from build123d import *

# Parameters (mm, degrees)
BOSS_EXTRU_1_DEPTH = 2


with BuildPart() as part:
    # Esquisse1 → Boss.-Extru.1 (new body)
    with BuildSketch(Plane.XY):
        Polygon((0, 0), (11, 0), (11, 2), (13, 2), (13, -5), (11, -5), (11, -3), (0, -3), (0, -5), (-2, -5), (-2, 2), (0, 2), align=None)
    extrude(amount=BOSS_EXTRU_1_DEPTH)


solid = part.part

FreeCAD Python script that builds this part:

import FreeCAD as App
import Part
import Sketcher

V = App.Vector


def add_polygon(sketch, points):
    """Adds a closed chain of lines whose ends are joined by coincident constraints."""
    first, n = sketch.GeometryCount, len(points)
    for a, b in zip(points, points[1:] + points[:1]):
        sketch.addGeometry(Part.LineSegment(App.Vector(*a, 0), App.Vector(*b, 0)), False)
    for i in range(n):
        sketch.addConstraint(Sketcher.Constraint("Coincident", first + i, 2, first + (i + 1) % n, 1))

doc = App.newDocument("Part")
body = doc.addObject("PartDesign::Body", "Body")

# Sketch on XY plane
sketch1 = body.newObject("Sketcher::SketchObject", "Sketch")
sketch1.AttachmentSupport = (doc.getObject("XY_Plane"), [""])
sketch1.MapMode = "FlatFace"
add_polygon(sketch1, [(11, 0), (0, 0), (0, 2), (-2, 2), (-2, -5), (0, -5), (0, -3), (11, -3), (11, -5), (13, -5), (13, 2), (11, 2)])  # lines 0-11
sketch1.addConstraint([
    Sketcher.Constraint("Horizontal", 0),
    Sketcher.Constraint("Vertical", 1),
    Sketcher.Constraint("Horizontal", 2),
    Sketcher.Constraint("Vertical", 3),
    Sketcher.Constraint("Horizontal", 4),
    Sketcher.Constraint("Vertical", 5),
    Sketcher.Constraint("Horizontal", 6),
    Sketcher.Constraint("Vertical", 7),
    Sketcher.Constraint("Horizontal", 8),
    Sketcher.Constraint("Vertical", 9),
    Sketcher.Constraint("Horizontal", 10),
    Sketcher.Constraint("Vertical", 11),
    Sketcher.Constraint("Coincident", 0, 2, -1, 1),
    Sketcher.Constraint("PointOnObject", 4, 2, -2),
    Sketcher.Constraint("Horizontal", 4, 2, 7, 2),
    Sketcher.Constraint("Horizontal", 2, 2, 9, 2),
    Sketcher.Constraint("Vertical", 7, 2, 10, 2),
    Sketcher.Constraint("Equal", 4, 8),
    Sketcher.Constraint("Equal", 10, 1),
    Sketcher.Constraint("Equal", 1, 5),
    Sketcher.Constraint("DistanceX", 0, 2, 0, 1, 11.0),
    Sketcher.Constraint("DistanceX", 2, 2, 2, 1, 2.0),
    Sketcher.Constraint("DistanceY", 3, 2, 3, 1, 7.0),
])
pad1 = body.newObject("PartDesign::Pad", "Pad")
pad1.Profile = sketch1
pad1.Length = 2

doc.recompute()
